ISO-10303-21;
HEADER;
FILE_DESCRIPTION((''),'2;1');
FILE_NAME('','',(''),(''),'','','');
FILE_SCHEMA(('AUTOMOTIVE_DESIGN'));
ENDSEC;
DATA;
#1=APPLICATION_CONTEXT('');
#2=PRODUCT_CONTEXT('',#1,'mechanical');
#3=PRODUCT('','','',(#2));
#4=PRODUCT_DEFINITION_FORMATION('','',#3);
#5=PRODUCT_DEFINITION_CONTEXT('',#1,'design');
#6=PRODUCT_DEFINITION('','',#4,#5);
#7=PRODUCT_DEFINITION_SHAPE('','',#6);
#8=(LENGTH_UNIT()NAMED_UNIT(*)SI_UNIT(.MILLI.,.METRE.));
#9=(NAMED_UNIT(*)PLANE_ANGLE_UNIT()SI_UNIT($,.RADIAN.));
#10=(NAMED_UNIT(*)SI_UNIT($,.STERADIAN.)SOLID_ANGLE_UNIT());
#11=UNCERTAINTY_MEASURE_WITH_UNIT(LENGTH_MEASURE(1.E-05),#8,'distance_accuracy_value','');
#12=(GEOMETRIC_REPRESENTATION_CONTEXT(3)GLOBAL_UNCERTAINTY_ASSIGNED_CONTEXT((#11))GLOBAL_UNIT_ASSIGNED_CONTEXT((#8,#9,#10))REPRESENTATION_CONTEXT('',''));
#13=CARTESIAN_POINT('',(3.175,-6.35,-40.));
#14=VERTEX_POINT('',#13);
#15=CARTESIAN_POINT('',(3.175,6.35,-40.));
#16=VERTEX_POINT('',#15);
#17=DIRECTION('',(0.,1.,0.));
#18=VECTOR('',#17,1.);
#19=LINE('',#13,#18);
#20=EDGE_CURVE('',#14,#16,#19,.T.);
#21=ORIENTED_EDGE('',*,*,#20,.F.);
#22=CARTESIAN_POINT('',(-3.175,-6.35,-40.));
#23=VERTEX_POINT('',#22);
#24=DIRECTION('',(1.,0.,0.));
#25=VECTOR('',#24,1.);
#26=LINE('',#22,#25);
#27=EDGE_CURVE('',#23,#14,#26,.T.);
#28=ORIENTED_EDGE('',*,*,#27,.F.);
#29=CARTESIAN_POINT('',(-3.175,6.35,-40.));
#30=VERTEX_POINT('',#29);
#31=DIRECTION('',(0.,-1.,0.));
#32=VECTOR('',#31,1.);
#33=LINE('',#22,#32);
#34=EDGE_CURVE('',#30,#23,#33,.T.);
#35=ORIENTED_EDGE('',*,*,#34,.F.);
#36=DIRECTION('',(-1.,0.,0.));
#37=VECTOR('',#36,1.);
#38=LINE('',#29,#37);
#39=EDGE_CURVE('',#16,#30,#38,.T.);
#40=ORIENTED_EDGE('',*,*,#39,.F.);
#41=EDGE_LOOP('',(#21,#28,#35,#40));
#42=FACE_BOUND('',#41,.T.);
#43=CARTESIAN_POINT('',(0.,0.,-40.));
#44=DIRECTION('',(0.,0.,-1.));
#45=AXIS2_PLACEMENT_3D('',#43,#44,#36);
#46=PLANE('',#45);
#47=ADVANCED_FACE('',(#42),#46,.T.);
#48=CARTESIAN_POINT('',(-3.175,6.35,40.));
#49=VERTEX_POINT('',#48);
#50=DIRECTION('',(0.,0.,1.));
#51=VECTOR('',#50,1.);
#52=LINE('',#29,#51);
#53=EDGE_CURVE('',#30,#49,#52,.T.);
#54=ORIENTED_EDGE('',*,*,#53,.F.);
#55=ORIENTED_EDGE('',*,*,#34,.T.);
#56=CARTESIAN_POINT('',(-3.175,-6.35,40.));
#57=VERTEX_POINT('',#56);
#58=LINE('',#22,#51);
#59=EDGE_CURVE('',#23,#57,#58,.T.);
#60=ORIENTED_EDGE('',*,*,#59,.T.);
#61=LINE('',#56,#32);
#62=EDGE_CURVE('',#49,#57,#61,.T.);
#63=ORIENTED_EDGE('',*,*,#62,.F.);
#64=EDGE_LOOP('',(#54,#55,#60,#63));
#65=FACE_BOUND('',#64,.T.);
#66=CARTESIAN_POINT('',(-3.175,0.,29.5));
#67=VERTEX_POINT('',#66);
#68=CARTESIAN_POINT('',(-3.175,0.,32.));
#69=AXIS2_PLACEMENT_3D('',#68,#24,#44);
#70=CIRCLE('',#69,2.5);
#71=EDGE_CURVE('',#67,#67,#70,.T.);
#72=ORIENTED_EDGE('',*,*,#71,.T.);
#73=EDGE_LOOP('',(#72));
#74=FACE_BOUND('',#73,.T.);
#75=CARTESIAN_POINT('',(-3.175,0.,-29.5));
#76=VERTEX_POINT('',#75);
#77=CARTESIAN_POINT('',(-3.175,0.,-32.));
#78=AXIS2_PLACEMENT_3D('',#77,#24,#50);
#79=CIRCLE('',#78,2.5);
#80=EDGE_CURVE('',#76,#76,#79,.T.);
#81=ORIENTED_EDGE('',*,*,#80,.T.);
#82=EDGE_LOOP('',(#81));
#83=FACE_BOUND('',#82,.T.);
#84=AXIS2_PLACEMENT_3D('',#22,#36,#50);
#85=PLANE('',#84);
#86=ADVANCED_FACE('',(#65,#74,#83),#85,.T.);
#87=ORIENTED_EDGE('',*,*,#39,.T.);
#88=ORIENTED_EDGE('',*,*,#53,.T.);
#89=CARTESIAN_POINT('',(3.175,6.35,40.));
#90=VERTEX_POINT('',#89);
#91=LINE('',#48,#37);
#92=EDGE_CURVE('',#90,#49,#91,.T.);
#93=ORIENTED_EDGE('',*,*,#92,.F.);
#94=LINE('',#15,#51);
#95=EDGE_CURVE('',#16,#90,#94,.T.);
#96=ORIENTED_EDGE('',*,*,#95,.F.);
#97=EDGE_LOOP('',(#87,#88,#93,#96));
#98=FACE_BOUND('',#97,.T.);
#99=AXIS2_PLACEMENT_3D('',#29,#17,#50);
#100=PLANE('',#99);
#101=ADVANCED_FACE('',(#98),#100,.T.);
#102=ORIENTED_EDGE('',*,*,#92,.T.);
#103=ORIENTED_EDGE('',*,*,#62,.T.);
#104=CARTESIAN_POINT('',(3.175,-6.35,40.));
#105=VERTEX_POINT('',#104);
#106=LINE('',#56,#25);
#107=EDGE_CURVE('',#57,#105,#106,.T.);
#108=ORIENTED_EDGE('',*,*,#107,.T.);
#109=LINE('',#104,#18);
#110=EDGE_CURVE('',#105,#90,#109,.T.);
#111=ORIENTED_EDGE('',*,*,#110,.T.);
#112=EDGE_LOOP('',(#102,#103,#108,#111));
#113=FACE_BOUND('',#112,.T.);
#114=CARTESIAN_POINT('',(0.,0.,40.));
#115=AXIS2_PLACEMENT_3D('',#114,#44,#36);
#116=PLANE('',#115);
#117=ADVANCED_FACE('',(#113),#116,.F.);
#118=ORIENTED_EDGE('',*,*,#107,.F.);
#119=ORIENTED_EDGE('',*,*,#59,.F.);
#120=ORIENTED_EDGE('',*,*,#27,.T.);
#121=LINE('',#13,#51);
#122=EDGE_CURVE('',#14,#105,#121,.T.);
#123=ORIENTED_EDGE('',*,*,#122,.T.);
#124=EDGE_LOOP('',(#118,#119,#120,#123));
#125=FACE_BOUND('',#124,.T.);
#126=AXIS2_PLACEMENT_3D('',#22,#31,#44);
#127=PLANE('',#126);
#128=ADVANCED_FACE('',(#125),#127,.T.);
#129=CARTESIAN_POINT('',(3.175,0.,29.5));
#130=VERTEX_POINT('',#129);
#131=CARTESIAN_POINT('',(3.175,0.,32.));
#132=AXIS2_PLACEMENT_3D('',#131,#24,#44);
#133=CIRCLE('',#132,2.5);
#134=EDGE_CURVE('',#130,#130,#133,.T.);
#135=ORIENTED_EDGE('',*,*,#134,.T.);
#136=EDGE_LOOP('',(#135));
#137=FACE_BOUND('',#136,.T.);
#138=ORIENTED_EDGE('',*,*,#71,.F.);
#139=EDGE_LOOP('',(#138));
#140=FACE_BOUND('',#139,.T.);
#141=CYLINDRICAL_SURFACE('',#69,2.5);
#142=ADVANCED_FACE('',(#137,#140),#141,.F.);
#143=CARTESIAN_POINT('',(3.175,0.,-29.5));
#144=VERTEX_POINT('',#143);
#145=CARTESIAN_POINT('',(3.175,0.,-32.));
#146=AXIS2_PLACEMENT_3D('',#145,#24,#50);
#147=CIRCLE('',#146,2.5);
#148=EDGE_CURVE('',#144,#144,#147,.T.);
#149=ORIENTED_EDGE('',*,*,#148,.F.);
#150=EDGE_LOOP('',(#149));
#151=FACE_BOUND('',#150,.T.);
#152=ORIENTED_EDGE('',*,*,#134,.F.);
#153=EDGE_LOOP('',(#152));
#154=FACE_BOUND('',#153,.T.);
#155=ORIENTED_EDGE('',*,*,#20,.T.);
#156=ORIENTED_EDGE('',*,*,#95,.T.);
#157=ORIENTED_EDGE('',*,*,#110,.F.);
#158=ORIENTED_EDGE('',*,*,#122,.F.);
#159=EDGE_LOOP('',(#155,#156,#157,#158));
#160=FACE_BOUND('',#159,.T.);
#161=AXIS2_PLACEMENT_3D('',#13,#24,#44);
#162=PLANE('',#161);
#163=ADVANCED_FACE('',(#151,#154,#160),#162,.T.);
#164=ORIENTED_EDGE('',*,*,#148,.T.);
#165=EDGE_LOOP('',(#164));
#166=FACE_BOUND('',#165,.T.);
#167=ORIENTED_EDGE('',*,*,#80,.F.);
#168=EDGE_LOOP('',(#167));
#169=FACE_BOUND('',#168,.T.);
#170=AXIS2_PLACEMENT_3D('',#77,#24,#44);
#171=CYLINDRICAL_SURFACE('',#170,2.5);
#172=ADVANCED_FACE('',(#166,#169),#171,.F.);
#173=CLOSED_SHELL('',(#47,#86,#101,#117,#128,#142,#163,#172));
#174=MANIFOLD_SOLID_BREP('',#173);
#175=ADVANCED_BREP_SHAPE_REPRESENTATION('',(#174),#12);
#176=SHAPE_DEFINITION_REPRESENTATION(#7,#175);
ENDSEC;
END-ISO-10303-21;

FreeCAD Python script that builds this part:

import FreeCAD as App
import Part
import Sketcher

doc = App.newDocument("Part")
body = doc.addObject("PartDesign::Body", "Body")

sketch1 = body.newObject("Sketcher::SketchObject", "Sketch")
sketch1.AttachmentSupport = (doc.getObject("XY_Plane"), [""])
sketch1.MapMode = "FlatFace"
sketch1.addGeometry([
    Part.LineSegment(App.Vector(-3, 6, 0), App.Vector(-3, -6, 0)),
    Part.LineSegment(App.Vector(-3, -6, 0), App.Vector(3, -6, 0)),
    Part.LineSegment(App.Vector(3, -6, 0), App.Vector(3, 6, 0)),
    Part.LineSegment(App.Vector(3, 6, 0), App.Vector(-3, 6, 0)),
], False)
sketch1.addConstraint([
    Sketcher.Constraint("Coincident", 0, 2, 1, 1),
    Sketcher.Constraint("Coincident", 1, 2, 2, 1),
    Sketcher.Constraint("Coincident", 2, 2, 3, 1),
    Sketcher.Constraint("Coincident", 3, 2, 0, 1),
    Sketcher.Constraint("Vertical", 0),
    Sketcher.Constraint("Horizontal", 1),
    Sketcher.Constraint("Vertical", 2),
    Sketcher.Constraint("Horizontal", 3),
    Sketcher.Constraint("Symmetric", 0, 2, 2, 2, -1, 1),
    Sketcher.Constraint("DistanceY", 0, 2, 0, 1, 12.7),
    Sketcher.Constraint("DistanceX", 1, 1, 1, 2, 6.35),
])
pad1 = body.newObject("PartDesign::Pad", "Pad")
pad1.Profile = sketch1
pad1.Type = "TwoLengths"
pad1.Length = 40
pad1.Length2 = 40

sketch2 = body.newObject("Sketcher::SketchObject", "Sketch001")
sketch2.AttachmentSupport = (doc.getObject("YZ_Plane"), [""])
sketch2.MapMode = "FlatFace"
sketch2.AttachmentOffset = App.Placement(App.Vector(0, 0, 3.175), App.Rotation())
sketch2.addGeometry([
    Part.Circle(App.Vector(0, 32, 0), App.Vector(0, 0, 1), 2.5),
    Part.Circle(App.Vector(0, -32, 0), App.Vector(0, 0, 1), 2.5),
], False)
sketch2.addConstraint([
    Sketcher.Constraint("Equal", 0, 1),
    Sketcher.Constraint("Symmetric", 0, 3, 1, 3, -1, 1),
    Sketcher.Constraint("PointOnObject", 0, 3, -2),
    Sketcher.Constraint("Diameter", 0, 5.0),
    Sketcher.Constraint("DistanceY", -1, 1, 0, 3, 32.0),
])
pocket1 = body.newObject("PartDesign::Pocket", "Pocket")
pocket1.Profile = sketch2
pocket1.Type = "ThroughAll"

doc.recompute()
